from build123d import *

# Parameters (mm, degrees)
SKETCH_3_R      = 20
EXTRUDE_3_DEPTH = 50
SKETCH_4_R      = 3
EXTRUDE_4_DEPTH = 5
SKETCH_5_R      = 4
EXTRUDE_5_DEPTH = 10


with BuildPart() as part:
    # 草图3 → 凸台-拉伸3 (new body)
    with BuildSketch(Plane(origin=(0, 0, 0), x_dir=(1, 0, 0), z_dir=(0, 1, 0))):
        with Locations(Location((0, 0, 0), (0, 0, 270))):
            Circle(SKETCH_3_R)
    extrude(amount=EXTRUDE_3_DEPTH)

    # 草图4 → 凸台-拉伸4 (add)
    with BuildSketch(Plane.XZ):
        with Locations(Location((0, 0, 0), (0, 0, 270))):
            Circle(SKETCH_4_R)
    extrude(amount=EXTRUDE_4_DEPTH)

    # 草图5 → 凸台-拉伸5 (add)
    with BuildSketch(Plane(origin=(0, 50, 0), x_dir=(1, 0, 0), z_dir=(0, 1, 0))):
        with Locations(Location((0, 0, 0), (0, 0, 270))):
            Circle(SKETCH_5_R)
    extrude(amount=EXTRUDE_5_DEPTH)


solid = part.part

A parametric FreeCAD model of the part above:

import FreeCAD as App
import Part
import Sketcher
from FreeCAD import Vector

doc = App.newDocument("Part")
body = doc.addObject("PartDesign::Body", "Body")

sketch1 = body.newObject("Sketcher::SketchObject", "Sketch")
sketch1.AttachmentSupport = (doc.getObject("XZ_Plane"), [""])
sketch1.MapMode = "FlatFace"
sketch1.addGeometry(Part.Circle(Vector(0, 0, 0), Vector(0, 0, 1), 20), False)
sketch1.addConstraint([
    Sketcher.Constraint("Coincident", 0, 3, -1, 1),
    Sketcher.Constraint("Diameter", 0, 40.0),
])
pad1 = body.newObject("PartDesign::Pad", "Pad")
pad1.Profile = sketch1
pad1.Length = 50
pad1.Reversed = True

sketch2 = body.newObject("Sketcher::SketchObject", "Sketch001")
sketch2.AttachmentSupport = (doc.getObject("XZ_Plane"), [""])
sketch2.MapMode = "FlatFace"
sketch2.addGeometry(Part.Circle(Vector(0, 0, 0), Vector(0, 0, 1), 3), False)
sketch2.addConstraint([
    Sketcher.Constraint("Coincident", 0, 3, -1, 1),
    Sketcher.Constraint("Diameter", 0, 6.0),
])
pad2 = body.newObject("PartDesign::Pad", "Pad001")
pad2.Profile = sketch2
pad2.Length = 5

sketch3 = body.newObject("Sketcher::SketchObject", "Sketch002")
sketch3.AttachmentSupport = (doc.getObject("XZ_Plane"), [""])
sketch3.MapMode = "FlatFace"
sketch3.AttachmentOffset = App.Placement(Vector(0, 0, -50), App.Rotation())
sketch3.addGeometry(Part.Circle(Vector(0, 0, 0), Vector(0, 0, 1), 4), False)
sketch3.addConstraint([
    Sketcher.Constraint("Coincident", 0, 3, -1, 1),
    Sketcher.Constraint("Diameter", 0, 8.0),
])
pad3 = body.newObject("PartDesign::Pad", "Pad002")
pad3.Profile = sketch3
pad3.Length = 10
pad3.Reversed = True

doc.recompute()
